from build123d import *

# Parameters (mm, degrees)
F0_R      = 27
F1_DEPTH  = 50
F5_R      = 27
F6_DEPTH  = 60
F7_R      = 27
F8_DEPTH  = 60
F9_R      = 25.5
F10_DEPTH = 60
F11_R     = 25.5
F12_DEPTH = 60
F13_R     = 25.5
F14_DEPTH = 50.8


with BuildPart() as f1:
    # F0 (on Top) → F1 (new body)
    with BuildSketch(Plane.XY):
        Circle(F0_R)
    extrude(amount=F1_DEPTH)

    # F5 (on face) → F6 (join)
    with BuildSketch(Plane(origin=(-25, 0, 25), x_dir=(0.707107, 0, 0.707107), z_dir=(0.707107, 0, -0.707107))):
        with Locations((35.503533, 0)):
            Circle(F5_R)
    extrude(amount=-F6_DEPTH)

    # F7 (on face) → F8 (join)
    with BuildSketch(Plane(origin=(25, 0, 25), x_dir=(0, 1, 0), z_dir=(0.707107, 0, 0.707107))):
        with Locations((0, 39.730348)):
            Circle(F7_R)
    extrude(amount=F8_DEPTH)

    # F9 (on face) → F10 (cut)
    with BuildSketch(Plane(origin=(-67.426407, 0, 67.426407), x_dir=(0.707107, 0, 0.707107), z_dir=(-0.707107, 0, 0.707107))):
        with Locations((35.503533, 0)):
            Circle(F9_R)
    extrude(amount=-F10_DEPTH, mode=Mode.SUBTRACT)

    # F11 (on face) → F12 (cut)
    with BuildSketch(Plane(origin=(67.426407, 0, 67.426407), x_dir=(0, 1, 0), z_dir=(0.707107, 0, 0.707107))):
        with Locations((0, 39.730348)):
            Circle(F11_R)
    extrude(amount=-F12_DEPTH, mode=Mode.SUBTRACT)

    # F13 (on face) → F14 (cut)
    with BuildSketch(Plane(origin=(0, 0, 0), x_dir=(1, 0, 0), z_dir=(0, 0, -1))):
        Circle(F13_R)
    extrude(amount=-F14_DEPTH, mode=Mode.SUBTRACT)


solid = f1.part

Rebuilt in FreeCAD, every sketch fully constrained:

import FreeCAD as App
import Part
import Sketcher

V = App.Vector
Q = App.Units.Quantity

doc = App.newDocument("Part")
body = doc.addObject("PartDesign::Body", "Body")

# Sketch on XY plane
sketch1 = doc.addObject("Sketcher::SketchObject", "Sketch")
body.addObject(sketch1)
sketch1.AttachmentSupport = (doc.XY_Plane, [""])
sketch1.MapMode = "FlatFace"
sketch1.addGeometry(Part.Circle(V(0, 0, 0), V(0, 0, 1), 27), False)
sketch1.addConstraint([
    Sketcher.Constraint("Coincident", 0, 3, -1, 1),
    Sketcher.Constraint("Diameter", 0, Q("54 mm")),
])
pad1 = doc.addObject("PartDesign::Pad", "Pad")
body.addObject(pad1)
pad1.Profile = sketch1
pad1.Length = 50

# Sketch on an angled plane
sketch2 = doc.addObject("Sketcher::SketchObject", "Sketch001")
body.addObject(sketch2)
sketch2.Placement = App.Placement(V(-25, 0, 25), App.Rotation(V(0.707106781, 0, 0.707106781), V(0, -0.999999999, 0), V(0.707106781, 0, -0.707106781), "ZXY"))
sketch2.addGeometry(Part.Circle(V(36, 0, 0), V(0, 0, 1), 27), False)
sketch2.addConstraint([
    Sketcher.Constraint("PointOnObject", 0, 3, -1),
    Sketcher.Constraint("Diameter", 0, Q("54 mm")),
    Sketcher.Constraint("DistanceX", -1, 1, 0, 3, Q("35.503533 mm")),
])
pad2 = doc.addObject("PartDesign::Pad", "Pad001")
body.addObject(pad2)
pad2.Profile = sketch2
pad2.Length = 60
pad2.Reversed = True

# Sketch on an angled plane
sketch3 = doc.addObject("Sketcher::SketchObject", "Sketch002")
body.addObject(sketch3)
sketch3.Placement = App.Placement(V(25, 0, 25), App.Rotation(V(0, 1, 0), V(-0.707106781, 0, 0.707106781), V(0.707106781, 0, 0.707106781), "ZXY"))
sketch3.addGeometry(Part.Circle(V(0, 40, 0), V(0, 0, 1), 27), False)
sketch3.addConstraint([
    Sketcher.Constraint("PointOnObject", 0, 3, -2),
    Sketcher.Constraint("Diameter", 0, Q("54 mm")),
    Sketcher.Constraint("DistanceY", -1, 1, 0, 3, Q("39.730348 mm")),
])
pad3 = doc.addObject("PartDesign::Pad", "Pad002")
body.addObject(pad3)
pad3.Profile = sketch3
pad3.Length = 60

# Sketch on an angled plane
sketch4 = doc.addObject("Sketcher::SketchObject", "Sketch003")
body.addObject(sketch4)
sketch4.Placement = App.Placement(V(-67.426407, 0, 67.426407), App.Rotation(V(0.707106781, 0, 0.707106781), V(0, 0.999999999, 0), V(-0.707106781, 0, 0.707106781), "ZXY"))
sketch4.addGeometry(Part.Circle(V(36, 0, 0), V(0, 0, 1), 26), False)
sketch4.addConstraint([
    Sketcher.Constraint("PointOnObject", 0, 3, -1),
    Sketcher.Constraint("Diameter", 0, Q("51 mm")),
    Sketcher.Constraint("DistanceX", -1, 1, 0, 3, Q("35.503533 mm")),
])
pocket1 = doc.addObject("PartDesign::Pocket", "Pocket")
body.addObject(pocket1)
pocket1.Profile = sketch4
pocket1.Length = 60

# Sketch on an angled plane
sketch5 = doc.addObject("Sketcher::SketchObject", "Sketch004")
body.addObject(sketch5)
sketch5.Placement = App.Placement(V(67.426407, 0, 67.426407), App.Rotation(V(0, 1, 0), V(-0.707106781, 0, 0.707106781), V(0.707106781, 0, 0.707106781), "ZXY"))
sketch5.addGeometry(Part.Circle(V(0, 40, 0), V(0, 0, 1), 26), False)
sketch5.addConstraint([
    Sketcher.Constraint("PointOnObject", 0, 3, -2),
    Sketcher.Constraint("Diameter", 0, Q("51 mm")),
    Sketcher.Constraint("DistanceY", -1, 1, 0, 3, Q("39.730348 mm")),
])
pocket2 = doc.addObject("PartDesign::Pocket", "Pocket001")
body.addObject(pocket2)
pocket2.Profile = sketch5
pocket2.Length = 60

# Sketch on XY plane
sketch6 = doc.addObject("Sketcher::SketchObject", "Sketch005")
body.addObject(sketch6)
sketch6.AttachmentSupport = (doc.XY_Plane, [""])
sketch6.MapMode = "FlatFace"
sketch6.addGeometry(Part.Circle(V(0, 0, 0), V(0, 0, 1), 26), False)
sketch6.addConstraint([
    Sketcher.Constraint("Coincident", 0, 3, -1, 1),
    Sketcher.Constraint("Diameter", 0, Q("51 mm")),
])
pocket3 = doc.addObject("PartDesign::Pocket", "Pocket002")
body.addObject(pocket3)
pocket3.Profile = sketch6
pocket3.Length = 50.8
pocket3.Reversed = True

doc.recompute()
